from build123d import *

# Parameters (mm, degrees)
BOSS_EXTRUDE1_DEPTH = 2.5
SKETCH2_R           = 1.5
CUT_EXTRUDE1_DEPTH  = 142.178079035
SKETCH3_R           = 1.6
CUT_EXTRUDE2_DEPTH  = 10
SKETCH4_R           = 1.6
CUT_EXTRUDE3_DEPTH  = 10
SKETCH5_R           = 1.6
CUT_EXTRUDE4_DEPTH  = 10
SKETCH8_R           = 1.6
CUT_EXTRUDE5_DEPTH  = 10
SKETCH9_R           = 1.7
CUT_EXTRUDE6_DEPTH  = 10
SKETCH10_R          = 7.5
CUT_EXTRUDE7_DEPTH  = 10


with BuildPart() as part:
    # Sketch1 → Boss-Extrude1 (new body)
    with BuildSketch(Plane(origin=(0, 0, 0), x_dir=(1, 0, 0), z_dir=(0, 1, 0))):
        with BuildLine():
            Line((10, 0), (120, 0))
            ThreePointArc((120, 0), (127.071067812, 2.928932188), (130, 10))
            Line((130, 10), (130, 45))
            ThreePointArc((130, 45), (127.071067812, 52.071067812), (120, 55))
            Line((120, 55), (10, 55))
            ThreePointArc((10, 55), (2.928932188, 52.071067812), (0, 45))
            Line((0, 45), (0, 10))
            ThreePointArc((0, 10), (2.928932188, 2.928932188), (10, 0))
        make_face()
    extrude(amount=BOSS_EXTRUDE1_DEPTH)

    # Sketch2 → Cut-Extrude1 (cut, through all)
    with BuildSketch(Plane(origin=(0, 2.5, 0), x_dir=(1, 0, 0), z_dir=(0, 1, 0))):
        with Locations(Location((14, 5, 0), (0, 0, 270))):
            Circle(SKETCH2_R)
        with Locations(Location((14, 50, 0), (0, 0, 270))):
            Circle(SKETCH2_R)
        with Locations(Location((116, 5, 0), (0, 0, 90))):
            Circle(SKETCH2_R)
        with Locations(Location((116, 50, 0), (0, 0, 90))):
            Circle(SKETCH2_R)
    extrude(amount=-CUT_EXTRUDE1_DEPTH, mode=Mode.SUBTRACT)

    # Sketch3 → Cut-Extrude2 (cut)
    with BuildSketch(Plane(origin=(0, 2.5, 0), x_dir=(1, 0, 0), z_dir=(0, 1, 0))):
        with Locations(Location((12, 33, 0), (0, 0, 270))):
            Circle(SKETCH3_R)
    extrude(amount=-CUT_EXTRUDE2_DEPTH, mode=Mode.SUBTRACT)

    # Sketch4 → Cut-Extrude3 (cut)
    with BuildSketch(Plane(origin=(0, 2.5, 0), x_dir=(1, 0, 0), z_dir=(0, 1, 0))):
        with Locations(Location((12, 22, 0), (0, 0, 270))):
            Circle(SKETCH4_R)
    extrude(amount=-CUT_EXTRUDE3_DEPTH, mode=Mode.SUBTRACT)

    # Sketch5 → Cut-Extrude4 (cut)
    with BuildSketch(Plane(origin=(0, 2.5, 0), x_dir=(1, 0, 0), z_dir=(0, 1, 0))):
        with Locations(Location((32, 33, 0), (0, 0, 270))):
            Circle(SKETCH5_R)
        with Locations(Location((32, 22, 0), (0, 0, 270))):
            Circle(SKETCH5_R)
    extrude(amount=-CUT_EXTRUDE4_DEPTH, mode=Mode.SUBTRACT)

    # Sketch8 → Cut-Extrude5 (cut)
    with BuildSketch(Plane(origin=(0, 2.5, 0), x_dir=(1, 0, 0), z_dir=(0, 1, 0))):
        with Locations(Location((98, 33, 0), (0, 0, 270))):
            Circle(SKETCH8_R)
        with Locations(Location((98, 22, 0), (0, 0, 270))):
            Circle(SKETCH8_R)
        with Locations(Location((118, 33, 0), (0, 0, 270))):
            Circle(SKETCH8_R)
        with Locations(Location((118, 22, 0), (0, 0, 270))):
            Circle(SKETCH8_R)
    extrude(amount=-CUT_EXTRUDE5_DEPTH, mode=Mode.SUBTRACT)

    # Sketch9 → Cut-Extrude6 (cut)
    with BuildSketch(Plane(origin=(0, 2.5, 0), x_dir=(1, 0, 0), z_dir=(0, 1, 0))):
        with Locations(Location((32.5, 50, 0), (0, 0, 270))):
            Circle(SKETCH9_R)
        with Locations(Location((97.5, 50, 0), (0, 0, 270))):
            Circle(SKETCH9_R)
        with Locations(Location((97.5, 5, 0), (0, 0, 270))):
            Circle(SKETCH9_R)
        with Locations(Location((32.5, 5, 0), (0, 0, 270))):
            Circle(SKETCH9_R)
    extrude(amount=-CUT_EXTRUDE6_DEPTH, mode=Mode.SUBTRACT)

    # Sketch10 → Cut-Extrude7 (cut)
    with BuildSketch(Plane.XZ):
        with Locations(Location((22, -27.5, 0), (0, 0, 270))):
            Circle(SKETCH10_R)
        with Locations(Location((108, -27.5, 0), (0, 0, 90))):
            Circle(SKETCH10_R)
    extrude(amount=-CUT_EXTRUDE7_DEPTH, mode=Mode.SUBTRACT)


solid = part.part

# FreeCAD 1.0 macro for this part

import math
import FreeCAD as App
import Part
import Sketcher
from FreeCAD import Vector

doc = App.newDocument("Part")
body = doc.addObject("PartDesign::Body", "Body")

# Sketch on XZ plane
sketch1 = body.newObject("Sketcher::SketchObject", "Sketch")
sketch1.AttachmentSupport = (doc.getObject("XZ_Plane"), [""])
sketch1.MapMode = "FlatFace"
sketch1.addGeometry(Part.LineSegment(Vector(10, 0, 0), Vector(120, 0, 0)), False)
sketch1.addGeometry(Part.ArcOfCircle(Part.Circle(Vector(120, -10, 0), Vector(0, 0, 1), 10), math.radians(0), math.radians(90)), False)
sketch1.addGeometry(Part.LineSegment(Vector(130, -10, 0), Vector(130, -45, 0)), False)
sketch1.addGeometry(Part.ArcOfCircle(Part.Circle(Vector(120, -45, 0), Vector(0, 0, 1), 10), math.radians(-90), math.radians(0)), False)
sketch1.addGeometry(Part.LineSegment(Vector(120, -55, 0), Vector(10, -55, 0)), False)
sketch1.addGeometry(Part.ArcOfCircle(Part.Circle(Vector(10, -45, 0), Vector(0, 0, 1), 10), math.radians(180), math.radians(270)), False)
sketch1.addGeometry(Part.LineSegment(Vector(0, -45, 0), Vector(0, -10, 0)), False)
sketch1.addGeometry(Part.ArcOfCircle(Part.Circle(Vector(10, -10, 0), Vector(0, 0, 1), 10), math.radians(90), math.radians(180)), False)
sketch1.addConstraint(Sketcher.Constraint("Tangent", 0, 2, 1, 2))
sketch1.addConstraint(Sketcher.Constraint("Tangent", 1, 1, 2, 1))
sketch1.addConstraint(Sketcher.Constraint("Tangent", 2, 2, 3, 2))
sketch1.addConstraint(Sketcher.Constraint("Tangent", 3, 1, 4, 1))
sketch1.addConstraint(Sketcher.Constraint("Tangent", 4, 2, 5, 2))
sketch1.addConstraint(Sketcher.Constraint("Tangent", 5, 1, 6, 1))
sketch1.addConstraint(Sketcher.Constraint("Tangent", 6, 2, 7, 2))
sketch1.addConstraint(Sketcher.Constraint("Tangent", 7, 1, 0, 1))
sketch1.addConstraint(Sketcher.Constraint("Horizontal", 0))
sketch1.addConstraint(Sketcher.Constraint("Vertical", 2))
sketch1.addConstraint(Sketcher.Constraint("Horizontal", 4))
sketch1.addConstraint(Sketcher.Constraint("Vertical", 6))
sketch1.addConstraint(Sketcher.Constraint("Equal", 1, 3))
sketch1.addConstraint(Sketcher.Constraint("Equal", 3, 5))
sketch1.addConstraint(Sketcher.Constraint("Equal", 5, 7))
sketch1.addConstraint(Sketcher.Constraint("PointOnObject", 0, 2, -1))
sketch1.addConstraint(Sketcher.Constraint("PointOnObject", 5, 1, -2))
sketch1.addConstraint(Sketcher.Constraint("Radius", 1, 10.0))
sketch1.addConstraint(Sketcher.Constraint("DistanceX", 0, 1, 0, 2, 110.0))
sketch1.addConstraint(Sketcher.Constraint("DistanceY", 2, 2, 2, 1, 35.0))
pad1 = body.newObject("PartDesign::Pad", "Pad")
pad1.Profile = sketch1
pad1.Length = 2.5
pad1.Reversed = True

# Sketch on XZ plane
sketch2 = body.newObject("Sketcher::SketchObject", "Sketch001")
sketch2.AttachmentSupport = (doc.getObject("XZ_Plane"), [""])
sketch2.MapMode = "FlatFace"
sketch2.AttachmentOffset = App.Placement(Vector(0, 0, -2.5), App.Rotation())
sketch2.addGeometry(Part.Circle(Vector(14, -5, 0), Vector(0, 0, 1), 1.5), False)
sketch2.addGeometry(Part.Circle(Vector(14, -50, 0), Vector(0, 0, 1), 1.5), False)
sketch2.addGeometry(Part.Circle(Vector(116, -5, 0), Vector(0, 0, 1), 1.5), False)
sketch2.addGeometry(Part.Circle(Vector(116, -50, 0), Vector(0, 0, 1), 1.5), False)
sketch2.addConstraint(Sketcher.Constraint("Equal", 0, 1))
sketch2.addConstraint(Sketcher.Constraint("Equal", 1, 2))
sketch2.addConstraint(Sketcher.Constraint("Equal", 2, 3))
sketch2.addConstraint(Sketcher.Constraint("Horizontal", 0, 3, 2, 3))
sketch2.addConstraint(Sketcher.Constraint("Horizontal", 1, 3, 3, 3))
sketch2.addConstraint(Sketcher.Constraint("Vertical", 0, 3, 1, 3))
sketch2.addConstraint(Sketcher.Constraint("Vertical", 2, 3, 3, 3))
sketch2.addConstraint(Sketcher.Constraint("Diameter", 0, 3.0))
sketch2.addConstraint(Sketcher.Constraint("DistanceX", -1, 1, 0, 3, 14.0))
sketch2.addConstraint(Sketcher.Constraint("DistanceY", 0, 3, -1, 1, 5.0))
sketch2.addConstraint(Sketcher.Constraint("DistanceY", 1, 3, -1, 1, 50.0))
sketch2.addConstraint(Sketcher.Constraint("DistanceX", -1, 1, 2, 3, 116.0))
pocket1 = body.newObject("PartDesign::Pocket", "Pocket")
pocket1.Profile = sketch2
pocket1.Type = "ThroughAll"
pocket1.Reversed = True

# Sketch on XZ plane
sketch3 = body.newObject("Sketcher::SketchObject", "Sketch002")
sketch3.AttachmentSupport = (doc.getObject("XZ_Plane"), [""])
sketch3.MapMode = "FlatFace"
sketch3.AttachmentOffset = App.Placement(Vector(0, 0, -2.5), App.Rotation())
sketch3.addGeometry(Part.Circle(Vector(12, -33, 0), Vector(0, 0, 1), 1.6), False)
sketch3.addConstraint(Sketcher.Constraint("Diameter", 0, 3.2))
sketch3.addConstraint(Sketcher.Constraint("DistanceX", -1, 1, 0, 3, 12.0))
sketch3.addConstraint(Sketcher.Constraint("DistanceY", 0, 3, -1, 1, 33.0))
pocket2 = body.newObject("PartDesign::Pocket", "Pocket001")
pocket2.Profile = sketch3
pocket2.Length = 10
pocket2.Reversed = True

# Sketch on XZ plane
sketch4 = body.newObject("Sketcher::SketchObject", "Sketch003")
sketch4.AttachmentSupport = (doc.getObject("XZ_Plane"), [""])
sketch4.MapMode = "FlatFace"
sketch4.AttachmentOffset = App.Placement(Vector(0, 0, -2.5), App.Rotation())
sketch4.addGeometry(Part.Circle(Vector(12, -22, 0), Vector(0, 0, 1), 1.6), False)
sketch4.addConstraint(Sketcher.Constraint("Diameter", 0, 3.2))
sketch4.addConstraint(Sketcher.Constraint("DistanceX", -1, 1, 0, 3, 12.0))
sketch4.addConstraint(Sketcher.Constraint("DistanceY", 0, 3, -1, 1, 22.0))
pocket3 = body.newObject("PartDesign::Pocket", "Pocket002")
pocket3.Profile = sketch4
pocket3.Length = 10
pocket3.Reversed = True

# Sketch on XZ plane
sketch5 = body.newObject("Sketcher::SketchObject", "Sketch004")
sketch5.AttachmentSupport = (doc.getObject("XZ_Plane"), [""])
sketch5.MapMode = "FlatFace"
sketch5.AttachmentOffset = App.Placement(Vector(0, 0, -2.5), App.Rotation())
sketch5.addGeometry(Part.Circle(Vector(32, -33, 0), Vector(0, 0, 1), 1.6), False)
sketch5.addGeometry(Part.Circle(Vector(32, -22, 0), Vector(0, 0, 1), 1.6), False)
sketch5.addConstraint(Sketcher.Constraint("Equal", 0, 1))
sketch5.addConstraint(Sketcher.Constraint("Vertical", 0, 3, 1, 3))
sketch5.addConstraint(Sketcher.Constraint("Diameter", 0, 3.2))
sketch5.addConstraint(Sketcher.Constraint("DistanceX", -1, 1, 0, 3, 32.0))
sketch5.addConstraint(Sketcher.Constraint("DistanceY", 0, 3, -1, 1, 33.0))
sketch5.addConstraint(Sketcher.Constraint("DistanceY", 1, 3, -1, 1, 22.0))
pocket4 = body.newObject("PartDesign::Pocket", "Pocket003")
pocket4.Profile = sketch5
pocket4.Length = 10
pocket4.Reversed = True

# Sketch on XZ plane
sketch6 = body.newObject("Sketcher::SketchObject", "Sketch005")
sketch6.AttachmentSupport = (doc.getObject("XZ_Plane"), [""])
sketch6.MapMode = "FlatFace"
sketch6.AttachmentOffset = App.Placement(Vector(0, 0, -2.5), App.Rotation())
sketch6.addGeometry(Part.Circle(Vector(98, -33, 0), Vector(0, 0, 1), 1.6), False)
sketch6.addGeometry(Part.Circle(Vector(98, -22, 0), Vector(0, 0, 1), 1.6), False)
sketch6.addGeometry(Part.Circle(Vector(118, -33, 0), Vector(0, 0, 1), 1.6), False)
sketch6.addGeometry(Part.Circle(Vector(118, -22, 0), Vector(0, 0, 1), 1.6), False)
sketch6.addConstraint(Sketcher.Constraint("Equal", 0, 1))
sketch6.addConstraint(Sketcher.Constraint("Equal", 1, 2))
sketch6.addConstraint(Sketcher.Constraint("Equal", 2, 3))
sketch6.addConstraint(Sketcher.Constraint("Horizontal", 0, 3, 2, 3))
sketch6.addConstraint(Sketcher.Constraint("Horizontal", 1, 3, 3, 3))
sketch6.addConstraint(Sketcher.Constraint("Vertical", 0, 3, 1, 3))
sketch6.addConstraint(Sketcher.Constraint("Vertical", 2, 3, 3, 3))
sketch6.addConstraint(Sketcher.Constraint("Diameter", 0, 3.2))
sketch6.addConstraint(Sketcher.Constraint("DistanceX", -1, 1, 0, 3, 98.0))
sketch6.addConstraint(Sketcher.Constraint("DistanceY", 0, 3, -1, 1, 33.0))
sketch6.addConstraint(Sketcher.Constraint("DistanceY", 1, 3, -1, 1, 22.0))
sketch6.addConstraint(Sketcher.Constraint("DistanceX", -1, 1, 2, 3, 118.0))
pocket5 = body.newObject("PartDesign::Pocket", "Pocket004")
pocket5.Profile = sketch6
pocket5.Length = 10
pocket5.Reversed = True

# Sketch on XZ plane
sketch7 = body.newObject("Sketcher::SketchObject", "Sketch006")
sketch7.AttachmentSupport = (doc.getObject("XZ_Plane"), [""])
sketch7.MapMode = "FlatFace"
sketch7.AttachmentOffset = App.Placement(Vector(0, 0, -2.5), App.Rotation())
sketch7.addGeometry(Part.Circle(Vector(32.5, -50, 0), Vector(0, 0, 1), 1.7), False)
sketch7.addGeometry(Part.Circle(Vector(97.5, -50, 0), Vector(0, 0, 1), 1.7), False)
sketch7.addGeometry(Part.Circle(Vector(97.5, -5, 0), Vector(0, 0, 1), 1.7), False)
sketch7.addGeometry(Part.Circle(Vector(32.5, -5, 0), Vector(0, 0, 1), 1.7), False)
sketch7.addConstraint(Sketcher.Constraint("Equal", 0, 1))
sketch7.addConstraint(Sketcher.Constraint("Equal", 1, 2))
sketch7.addConstraint(Sketcher.Constraint("Equal", 2, 3))
sketch7.addConstraint(Sketcher.Constraint("Horizontal", 0, 3, 1, 3))
sketch7.addConstraint(Sketcher.Constraint("Horizontal", 2, 3, 3, 3))
sketch7.addConstraint(Sketcher.Constraint("Vertical", 1, 3, 2, 3))
sketch7.addConstraint(Sketcher.Constraint("Vertical", 0, 3, 3, 3))
sketch7.addConstraint(Sketcher.Constraint("Diameter", 0, 3.4))
sketch7.addConstraint(Sketcher.Constraint("DistanceY", 0, 3, -1, 1, 50.0))
sketch7.addConstraint(Sketcher.Constraint("DistanceY", 2, 3, -1, 1, 5.0))
sketch7.addConstraint(Sketcher.Constraint("DistanceX", 0, 3, 1, 3, 65.0))
sketch7.addConstraint(Sketcher.Constraint("DistanceX", -1, 1, 0, 3, 32.5))
pocket6 = body.newObject("PartDesign::Pocket", "Pocket005")
pocket6.Profile = sketch7
pocket6.Length = 10
pocket6.Reversed = True

# Sketch on XZ plane
sketch8 = body.newObject("Sketcher::SketchObject", "Sketch007")
sketch8.AttachmentSupport = (doc.getObject("XZ_Plane"), [""])
sketch8.MapMode = "FlatFace"
sketch8.addGeometry(Part.Circle(Vector(22, -28, 0), Vector(0, 0, 1), 8), False)
sketch8.addGeometry(Part.Circle(Vector(108, -28, 0), Vector(0, 0, 1), 8), False)
sketch8.addConstraint(Sketcher.Constraint("Equal", 0, 1))
sketch8.addConstraint(Sketcher.Constraint("Horizontal", 0, 3, 1, 3))
sketch8.addConstraint(Sketcher.Constraint("Diameter", 0, 15.0))
sketch8.addConstraint(Sketcher.Constraint("DistanceX", -1, 1, 0, 3, 22.0))
sketch8.addConstraint(Sketcher.Constraint("DistanceX", -1, 1, 1, 3, 108.0))
sketch8.addConstraint(Sketcher.Constraint("DistanceY", 0, 3, -1, 1, 27.5))
pocket7 = body.newObject("PartDesign::Pocket", "Pocket006")
pocket7.Profile = sketch8
pocket7.Length = 10

doc.recompute()
